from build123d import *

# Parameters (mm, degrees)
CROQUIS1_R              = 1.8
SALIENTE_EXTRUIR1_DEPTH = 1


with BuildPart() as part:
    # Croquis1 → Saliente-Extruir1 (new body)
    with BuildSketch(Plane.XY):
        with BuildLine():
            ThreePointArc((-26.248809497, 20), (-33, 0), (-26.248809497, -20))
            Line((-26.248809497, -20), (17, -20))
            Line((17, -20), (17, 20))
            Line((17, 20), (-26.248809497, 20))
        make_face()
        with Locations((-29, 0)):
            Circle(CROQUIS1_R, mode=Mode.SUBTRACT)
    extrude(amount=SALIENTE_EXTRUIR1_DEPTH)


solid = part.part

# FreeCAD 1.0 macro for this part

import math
import FreeCAD as App
import Part
import Sketcher
from FreeCAD import Vector
Q = App.Units.Quantity

doc = App.newDocument("Part")
body = doc.addObject("PartDesign::Body", "Body")

# Sketch on XY plane
sketch1 = body.newObject("Sketcher::SketchObject", "Sketch")
sketch1.AttachmentSupport = (doc.getObject("XY_Plane"), [""])
sketch1.MapMode = "FlatFace"
sketch1.addGeometry(Part.ArcOfCircle(Part.Circle(Vector(0, 0, 0), Vector(0, 0, 1), 33), math.radians(143), math.radians(217)), False)
sketch1.addGeometry(Part.LineSegment(Vector(-26.2, -20, 0), Vector(17, -20, 0)), False)
sketch1.addGeometry(Part.LineSegment(Vector(17, -20, 0), Vector(17, 20, 0)), False)
sketch1.addGeometry(Part.LineSegment(Vector(17, 20, 0), Vector(-26.2, 20, 0)), False)
sketch1.addGeometry(Part.Circle(Vector(-29, 0, 0), Vector(0, 0, 1), 1.8), False)
sketch1.addConstraint(Sketcher.Constraint("Coincident", 0, 2, 1, 1))
sketch1.addConstraint(Sketcher.Constraint("Coincident", 1, 2, 2, 1))
sketch1.addConstraint(Sketcher.Constraint("Coincident", 2, 2, 3, 1))
sketch1.addConstraint(Sketcher.Constraint("Coincident", 3, 2, 0, 1))
sketch1.addConstraint(Sketcher.Constraint("Horizontal", 1))
sketch1.addConstraint(Sketcher.Constraint("Vertical", 2))
sketch1.addConstraint(Sketcher.Constraint("Horizontal", 3))
sketch1.addConstraint(Sketcher.Constraint("Coincident", 0, 3, -1, 1))
sketch1.addConstraint(Sketcher.Constraint("PointOnObject", 4, 3, -1))
sketch1.addConstraint(Sketcher.Constraint("Vertical", 0, 2, 3, 2))
sketch1.addConstraint(Sketcher.Constraint("Radius", 0, Q("33 mm")))
sketch1.addConstraint(Sketcher.Constraint("Diameter", 4, Q("3.6 mm")))
sketch1.addConstraint(Sketcher.Constraint("DistanceY", 2, 1, 2, 2, Q("40 mm")))
sketch1.addConstraint(Sketcher.Constraint("DistanceX", 4, 3, -1, 1, Q("29 mm")))
sketch1.addConstraint(Sketcher.Constraint("DistanceX", -1, 1, 1, 2, Q("17 mm")))
pad1 = body.newObject("PartDesign::Pad", "Pad")
pad1.Profile = sketch1
pad1.Length = 1

doc.recompute()
